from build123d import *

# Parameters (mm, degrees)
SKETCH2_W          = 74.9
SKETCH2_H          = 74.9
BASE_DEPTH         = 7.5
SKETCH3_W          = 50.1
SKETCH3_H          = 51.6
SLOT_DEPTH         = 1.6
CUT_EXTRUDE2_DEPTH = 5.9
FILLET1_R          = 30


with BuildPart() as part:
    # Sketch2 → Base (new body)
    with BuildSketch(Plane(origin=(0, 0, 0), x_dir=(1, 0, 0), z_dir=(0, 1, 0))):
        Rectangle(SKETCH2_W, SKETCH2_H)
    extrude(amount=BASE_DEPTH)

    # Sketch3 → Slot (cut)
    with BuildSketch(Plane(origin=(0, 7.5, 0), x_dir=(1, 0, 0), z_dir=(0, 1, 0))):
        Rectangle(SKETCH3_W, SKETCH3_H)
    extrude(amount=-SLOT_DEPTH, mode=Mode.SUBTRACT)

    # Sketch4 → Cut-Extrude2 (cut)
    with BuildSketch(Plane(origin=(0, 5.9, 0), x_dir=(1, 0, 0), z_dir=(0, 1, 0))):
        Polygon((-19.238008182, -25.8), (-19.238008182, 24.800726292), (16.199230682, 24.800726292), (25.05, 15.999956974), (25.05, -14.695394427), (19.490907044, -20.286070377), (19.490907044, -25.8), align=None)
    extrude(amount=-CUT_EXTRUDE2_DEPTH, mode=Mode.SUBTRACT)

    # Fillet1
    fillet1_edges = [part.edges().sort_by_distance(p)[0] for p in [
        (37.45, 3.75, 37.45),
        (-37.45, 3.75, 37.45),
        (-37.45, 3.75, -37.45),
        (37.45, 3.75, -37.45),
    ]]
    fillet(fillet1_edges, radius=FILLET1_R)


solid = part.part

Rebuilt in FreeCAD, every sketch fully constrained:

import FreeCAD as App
import Part
import Sketcher


def edges_at(feature, points):
    """Names of the edges that pass closest to the given points."""
    edges = feature.Shape.Edges
    near = lambda p: min(range(len(edges)), key=lambda i: edges[i].distToShape(Part.Vertex(*p))[0])
    return sorted({f"Edge{near(p) + 1}" for p in points})

doc = App.newDocument("Part")
params = doc.addObject("Spreadsheet::Sheet", "Params")
for row, (alias, value) in enumerate([
    ("sketch1_width", "74.9 mm"),
    ("pad1_length", "7.5 mm"),
    ("sketch2_width", "50.1 mm"),
    ("sketch2_height", "51.6 mm"),
    ("pocket1_length", "1.6 mm"),
    ("pocket2_length", "5.9 mm"),
    ("fillet_radius", "30 mm"),
], start=1):
    params.set(f"A{row}", alias)
    params.set(f"B{row}", "=" + value)
    params.setAlias(f"B{row}", alias)

body = doc.addObject("PartDesign::Body", "Body")

# Sketch on XZ plane
sketch1 = doc.addObject("Sketcher::SketchObject", "Sketch")
body.addObject(sketch1)
sketch1.AttachmentSupport = (doc.XZ_Plane, [""])
sketch1.MapMode = "FlatFace"
sketch1.addGeometry(Part.LineSegment(App.Vector(-37, -37, 0), App.Vector(-37, 37, 0)), False)
sketch1.addGeometry(Part.LineSegment(App.Vector(-37, 37, 0), App.Vector(37, 37, 0)), False)
sketch1.addGeometry(Part.LineSegment(App.Vector(37, 37, 0), App.Vector(37, -37, 0)), False)
sketch1.addGeometry(Part.LineSegment(App.Vector(37, -37, 0), App.Vector(-37, -37, 0)), False)
sketch1.addConstraint(Sketcher.Constraint("Coincident", 0, 2, 1, 1))
sketch1.addConstraint(Sketcher.Constraint("Coincident", 1, 2, 2, 1))
sketch1.addConstraint(Sketcher.Constraint("Coincident", 2, 2, 3, 1))
sketch1.addConstraint(Sketcher.Constraint("Coincident", 3, 2, 0, 1))
sketch1.addConstraint(Sketcher.Constraint("Vertical", 0))
sketch1.addConstraint(Sketcher.Constraint("Horizontal", 1))
sketch1.addConstraint(Sketcher.Constraint("Vertical", 2))
sketch1.addConstraint(Sketcher.Constraint("Horizontal", 3))
sketch1.addConstraint(Sketcher.Constraint("Symmetric", 0, 2, 2, 2, -1, 1))
sketch1.addConstraint(Sketcher.Constraint("Equal", 3, 0))
sketch1.addConstraint(Sketcher.Constraint("DistanceX", 1, 1, 1, 2, 74.9))
sketch1.setExpression("Constraints[10]", "Params.sketch1_width")
pad1 = doc.addObject("PartDesign::Pad", "Pad")
body.addObject(pad1)
pad1.Profile = sketch1
pad1.setExpression("Length", "Params.pad1_length")
pad1.Reversed = True

# Sketch on XZ plane
sketch2 = doc.addObject("Sketcher::SketchObject", "Sketch001")
body.addObject(sketch2)
sketch2.AttachmentSupport = (doc.XZ_Plane, [""])
sketch2.MapMode = "FlatFace"
sketch2.AttachmentOffset = App.Placement(App.Vector(0, 0, -7.5), App.Rotation())
sketch2.addGeometry(Part.LineSegment(App.Vector(-25, -26, 0), App.Vector(-25, 26, 0)), False)
sketch2.addGeometry(Part.LineSegment(App.Vector(-25, 26, 0), App.Vector(25, 26, 0)), False)
sketch2.addGeometry(Part.LineSegment(App.Vector(25, 26, 0), App.Vector(25, -26, 0)), False)
sketch2.addGeometry(Part.LineSegment(App.Vector(25, -26, 0), App.Vector(-25, -26, 0)), False)
sketch2.addConstraint(Sketcher.Constraint("Coincident", 0, 2, 1, 1))
sketch2.addConstraint(Sketcher.Constraint("Coincident", 1, 2, 2, 1))
sketch2.addConstraint(Sketcher.Constraint("Coincident", 2, 2, 3, 1))
sketch2.addConstraint(Sketcher.Constraint("Coincident", 3, 2, 0, 1))
sketch2.addConstraint(Sketcher.Constraint("Vertical", 0))
sketch2.addConstraint(Sketcher.Constraint("Horizontal", 1))
sketch2.addConstraint(Sketcher.Constraint("Vertical", 2))
sketch2.addConstraint(Sketcher.Constraint("Horizontal", 3))
sketch2.addConstraint(Sketcher.Constraint("Symmetric", 0, 2, 2, 2, -1, 1))
sketch2.addConstraint(Sketcher.Constraint("DistanceX", 1, 1, 1, 2, 50.1))
sketch2.addConstraint(Sketcher.Constraint("DistanceY", 0, 1, 0, 2, 51.6))
sketch2.setExpression("Constraints[9]", "Params.sketch2_width")
sketch2.setExpression("Constraints[10]", "Params.sketch2_height")
pocket1 = doc.addObject("PartDesign::Pocket", "Pocket")
body.addObject(pocket1)
pocket1.Profile = sketch2
pocket1.setExpression("Length", "Params.pocket1_length")
pocket1.Reversed = True

# Sketch on XZ plane
sketch3 = doc.addObject("Sketcher::SketchObject", "Sketch002")
body.addObject(sketch3)
sketch3.AttachmentSupport = (doc.XZ_Plane, [""])
sketch3.MapMode = "FlatFace"
sketch3.AttachmentOffset = App.Placement(App.Vector(0, 0, -5.9), App.Rotation())
sketch3.addGeometry(Part.LineSegment(App.Vector(-19, -25, 0), App.Vector(-19, 26, 0)), False)
sketch3.addGeometry(Part.LineSegment(App.Vector(-19, 26, 0), App.Vector(19, 26, 0)), False)
sketch3.addGeometry(Part.LineSegment(App.Vector(19, 26, 0), App.Vector(19, 20, 0)), False)
sketch3.addGeometry(Part.LineSegment(App.Vector(19, 20, 0), App.Vector(25, 15, 0)), False)
sketch3.addGeometry(Part.LineSegment(App.Vector(25, 15, 0), App.Vector(25, -16, 0)), False)
sketch3.addGeometry(Part.LineSegment(App.Vector(25, -16, 0), App.Vector(16, -25, 0)), False)
sketch3.addGeometry(Part.LineSegment(App.Vector(16, -25, 0), App.Vector(-19, -25, 0)), False)
sketch3.addConstraint(Sketcher.Constraint("Coincident", 0, 2, 1, 1))
sketch3.addConstraint(Sketcher.Constraint("Coincident", 1, 2, 2, 1))
sketch3.addConstraint(Sketcher.Constraint("Coincident", 2, 2, 3, 1))
sketch3.addConstraint(Sketcher.Constraint("Coincident", 3, 2, 4, 1))
sketch3.addConstraint(Sketcher.Constraint("Coincident", 4, 2, 5, 1))
sketch3.addConstraint(Sketcher.Constraint("Coincident", 5, 2, 6, 1))
sketch3.addConstraint(Sketcher.Constraint("Coincident", 6, 2, 0, 1))
sketch3.addConstraint(Sketcher.Constraint("Vertical", 0))
sketch3.addConstraint(Sketcher.Constraint("Horizontal", 1))
sketch3.addConstraint(Sketcher.Constraint("Vertical", 2))
sketch3.addConstraint(Sketcher.Constraint("Vertical", 4))
sketch3.addConstraint(Sketcher.Constraint("Horizontal", 6))
sketch3.addConstraint(Sketcher.Constraint("Perpendicular", 3, 5))
sketch3.addConstraint(Sketcher.Constraint("DistanceY", -1, 1, 0, 2, 25.8))
sketch3.addConstraint(Sketcher.Constraint("DistanceX", -1, 1, 3, 2, 25.05))
sketch3.addConstraint(Sketcher.Constraint("DistanceX", 6, 2, 6, 1, 35.437239))
sketch3.addConstraint(Sketcher.Constraint("DistanceY", 2, 2, 2, 1, 5.51393))
sketch3.addConstraint(Sketcher.Constraint("DistanceY", 4, 2, 4, 1, 30.695351))
sketch3.addConstraint(Sketcher.Constraint("Distance", 3, 7.884109))
sketch3.addConstraint(Sketcher.Constraint("DistanceX", 1, 1, 1, 2, 38.728915))
sketch3.addConstraint(Sketcher.Constraint("DistanceY", 0, 1, 0, 2, 50.600726))
pocket2 = doc.addObject("PartDesign::Pocket", "Pocket001")
body.addObject(pocket2)
pocket2.Profile = sketch3
pocket2.setExpression("Length", "Params.pocket2_length")
pocket2.Reversed = True
doc.recompute()

fillet = doc.addObject("PartDesign::Fillet", "Fillet")
body.addObject(fillet)
fillet.Base = (pocket2, edges_at(pocket2, [
    (37.45, 3.75, 37.45),
    (-37.45, 3.75, 37.45),
    (-37.45, 3.75, -37.45),
    (37.45, 3.75, -37.45),
]))
fillet.setExpression("Radius", "Params.fillet_radius")

doc.recompute()
